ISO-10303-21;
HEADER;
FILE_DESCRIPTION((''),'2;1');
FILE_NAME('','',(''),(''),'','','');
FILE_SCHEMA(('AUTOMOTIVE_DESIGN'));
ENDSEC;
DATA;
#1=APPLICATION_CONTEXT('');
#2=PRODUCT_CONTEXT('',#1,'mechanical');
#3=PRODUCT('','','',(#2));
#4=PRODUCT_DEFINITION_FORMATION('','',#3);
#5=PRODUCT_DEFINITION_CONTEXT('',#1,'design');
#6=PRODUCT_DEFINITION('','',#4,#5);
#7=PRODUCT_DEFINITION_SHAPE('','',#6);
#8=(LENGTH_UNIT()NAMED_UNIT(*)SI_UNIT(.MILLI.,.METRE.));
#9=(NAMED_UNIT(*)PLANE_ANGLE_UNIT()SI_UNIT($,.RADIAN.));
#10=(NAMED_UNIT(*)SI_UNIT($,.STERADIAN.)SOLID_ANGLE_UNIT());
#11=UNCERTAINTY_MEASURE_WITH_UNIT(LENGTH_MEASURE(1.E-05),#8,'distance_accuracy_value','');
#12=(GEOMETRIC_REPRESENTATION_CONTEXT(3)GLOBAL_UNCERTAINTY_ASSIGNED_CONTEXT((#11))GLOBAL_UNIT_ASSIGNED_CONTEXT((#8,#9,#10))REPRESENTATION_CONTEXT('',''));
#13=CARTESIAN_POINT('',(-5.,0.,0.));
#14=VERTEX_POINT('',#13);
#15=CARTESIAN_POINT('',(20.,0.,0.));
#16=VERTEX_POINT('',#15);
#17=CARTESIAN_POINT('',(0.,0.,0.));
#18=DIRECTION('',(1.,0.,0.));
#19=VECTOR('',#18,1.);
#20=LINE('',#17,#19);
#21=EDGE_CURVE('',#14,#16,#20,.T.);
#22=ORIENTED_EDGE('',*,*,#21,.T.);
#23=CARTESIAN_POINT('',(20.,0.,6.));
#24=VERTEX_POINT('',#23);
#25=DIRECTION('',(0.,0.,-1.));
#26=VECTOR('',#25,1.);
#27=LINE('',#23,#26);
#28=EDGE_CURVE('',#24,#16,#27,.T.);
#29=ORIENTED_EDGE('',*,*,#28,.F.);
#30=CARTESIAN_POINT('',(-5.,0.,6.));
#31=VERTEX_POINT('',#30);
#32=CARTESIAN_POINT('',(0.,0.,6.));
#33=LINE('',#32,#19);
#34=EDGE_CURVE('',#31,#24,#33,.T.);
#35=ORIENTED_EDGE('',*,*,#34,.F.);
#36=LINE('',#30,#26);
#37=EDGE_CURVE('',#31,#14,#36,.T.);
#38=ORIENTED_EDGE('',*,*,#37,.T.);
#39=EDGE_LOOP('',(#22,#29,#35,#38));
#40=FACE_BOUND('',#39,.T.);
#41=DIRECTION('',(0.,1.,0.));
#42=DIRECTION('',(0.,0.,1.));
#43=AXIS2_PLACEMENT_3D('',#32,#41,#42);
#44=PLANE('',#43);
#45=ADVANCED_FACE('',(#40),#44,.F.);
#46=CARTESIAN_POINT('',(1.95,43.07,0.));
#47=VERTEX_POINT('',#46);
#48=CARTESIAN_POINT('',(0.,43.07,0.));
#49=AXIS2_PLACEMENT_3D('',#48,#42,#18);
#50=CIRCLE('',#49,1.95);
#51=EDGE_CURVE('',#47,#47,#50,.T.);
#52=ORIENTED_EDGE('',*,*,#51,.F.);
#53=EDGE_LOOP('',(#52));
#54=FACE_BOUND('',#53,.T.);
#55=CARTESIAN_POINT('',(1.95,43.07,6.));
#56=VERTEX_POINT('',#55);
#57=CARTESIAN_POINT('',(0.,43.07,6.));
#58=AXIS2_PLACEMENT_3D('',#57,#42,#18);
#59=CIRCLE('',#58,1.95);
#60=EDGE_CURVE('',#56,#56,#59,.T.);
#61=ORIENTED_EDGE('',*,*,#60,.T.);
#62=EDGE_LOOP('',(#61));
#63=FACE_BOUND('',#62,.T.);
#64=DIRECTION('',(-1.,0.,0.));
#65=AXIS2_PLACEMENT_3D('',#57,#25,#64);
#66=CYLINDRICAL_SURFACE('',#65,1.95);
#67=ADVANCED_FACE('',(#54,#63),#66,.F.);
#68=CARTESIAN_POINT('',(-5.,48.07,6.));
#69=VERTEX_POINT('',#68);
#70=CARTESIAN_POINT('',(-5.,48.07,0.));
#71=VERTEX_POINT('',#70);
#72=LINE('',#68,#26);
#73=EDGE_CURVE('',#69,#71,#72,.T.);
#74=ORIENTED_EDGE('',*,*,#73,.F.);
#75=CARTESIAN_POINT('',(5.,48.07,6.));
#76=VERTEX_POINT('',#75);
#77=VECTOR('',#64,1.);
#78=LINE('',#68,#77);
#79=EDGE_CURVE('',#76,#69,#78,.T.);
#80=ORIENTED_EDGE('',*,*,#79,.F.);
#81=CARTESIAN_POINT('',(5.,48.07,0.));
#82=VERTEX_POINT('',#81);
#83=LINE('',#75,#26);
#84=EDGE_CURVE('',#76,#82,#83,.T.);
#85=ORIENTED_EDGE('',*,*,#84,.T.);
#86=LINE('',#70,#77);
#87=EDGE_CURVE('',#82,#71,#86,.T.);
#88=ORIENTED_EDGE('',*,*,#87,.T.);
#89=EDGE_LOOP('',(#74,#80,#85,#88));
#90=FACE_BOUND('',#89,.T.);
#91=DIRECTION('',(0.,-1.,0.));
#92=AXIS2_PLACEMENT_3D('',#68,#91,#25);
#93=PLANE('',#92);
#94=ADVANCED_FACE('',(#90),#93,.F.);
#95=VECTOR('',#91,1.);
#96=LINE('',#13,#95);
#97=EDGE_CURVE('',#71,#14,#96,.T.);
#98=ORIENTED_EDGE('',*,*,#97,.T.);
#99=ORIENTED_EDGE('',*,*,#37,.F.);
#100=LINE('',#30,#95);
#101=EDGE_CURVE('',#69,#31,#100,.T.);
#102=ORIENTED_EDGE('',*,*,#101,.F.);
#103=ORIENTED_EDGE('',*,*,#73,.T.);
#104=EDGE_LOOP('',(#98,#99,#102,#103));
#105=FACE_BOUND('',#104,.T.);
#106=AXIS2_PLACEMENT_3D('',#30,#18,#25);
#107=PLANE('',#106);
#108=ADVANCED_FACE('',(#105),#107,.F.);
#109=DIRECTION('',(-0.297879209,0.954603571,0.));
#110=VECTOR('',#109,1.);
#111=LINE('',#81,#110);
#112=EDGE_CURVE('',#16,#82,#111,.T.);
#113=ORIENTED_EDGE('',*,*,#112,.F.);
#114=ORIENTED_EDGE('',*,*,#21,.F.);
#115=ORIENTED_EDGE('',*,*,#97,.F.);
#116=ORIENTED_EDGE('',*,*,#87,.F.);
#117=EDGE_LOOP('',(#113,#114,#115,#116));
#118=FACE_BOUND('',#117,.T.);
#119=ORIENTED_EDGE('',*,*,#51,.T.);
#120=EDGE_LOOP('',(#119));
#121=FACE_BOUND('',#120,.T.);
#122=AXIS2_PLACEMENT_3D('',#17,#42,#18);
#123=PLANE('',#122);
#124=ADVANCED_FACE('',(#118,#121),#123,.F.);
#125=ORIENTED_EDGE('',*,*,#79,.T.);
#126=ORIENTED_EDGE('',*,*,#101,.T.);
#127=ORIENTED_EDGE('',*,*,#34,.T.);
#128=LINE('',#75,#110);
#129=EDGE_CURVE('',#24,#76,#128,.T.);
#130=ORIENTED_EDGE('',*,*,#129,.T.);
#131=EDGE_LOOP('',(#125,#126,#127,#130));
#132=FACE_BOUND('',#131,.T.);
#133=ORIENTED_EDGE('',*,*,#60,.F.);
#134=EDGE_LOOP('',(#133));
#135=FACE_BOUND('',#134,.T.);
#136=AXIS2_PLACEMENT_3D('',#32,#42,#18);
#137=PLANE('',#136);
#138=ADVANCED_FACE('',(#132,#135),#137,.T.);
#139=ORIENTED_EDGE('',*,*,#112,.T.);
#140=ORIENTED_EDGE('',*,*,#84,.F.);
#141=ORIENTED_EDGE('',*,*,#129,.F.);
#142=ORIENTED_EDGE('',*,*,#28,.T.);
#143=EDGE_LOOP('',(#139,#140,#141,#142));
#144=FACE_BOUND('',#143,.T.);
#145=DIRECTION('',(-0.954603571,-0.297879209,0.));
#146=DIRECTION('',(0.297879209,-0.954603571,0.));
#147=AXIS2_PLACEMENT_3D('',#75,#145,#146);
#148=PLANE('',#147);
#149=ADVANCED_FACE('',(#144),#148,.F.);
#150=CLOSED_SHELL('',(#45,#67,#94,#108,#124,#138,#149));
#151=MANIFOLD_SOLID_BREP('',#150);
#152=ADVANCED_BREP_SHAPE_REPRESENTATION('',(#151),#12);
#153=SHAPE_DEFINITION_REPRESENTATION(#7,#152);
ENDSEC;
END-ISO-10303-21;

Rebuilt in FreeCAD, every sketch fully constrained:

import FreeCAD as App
import Part
import Sketcher
from FreeCAD import Vector

doc = App.newDocument("Part")
body = doc.addObject("PartDesign::Body", "Body")

# Sketch on XY plane
sketch1 = body.newObject("Sketcher::SketchObject", "Sketch")
sketch1.AttachmentSupport = (doc.getObject("XY_Plane"), [""])
sketch1.MapMode = "FlatFace"
sketch1.addGeometry(Part.LineSegment(Vector(-5, 0, 0), Vector(20, 0, 0)), False)
sketch1.addGeometry(Part.LineSegment(Vector(20, 0, 0), Vector(5, 48.1, 0)), False)
sketch1.addGeometry(Part.LineSegment(Vector(5, 48.1, 0), Vector(-5, 48.1, 0)), False)
sketch1.addGeometry(Part.LineSegment(Vector(-5, 48.1, 0), Vector(-5, 0, 0)), False)
sketch1.addGeometry(Part.Circle(Vector(0, 43.1, 0), Vector(0, 0, 1), 1.9), False)
sketch1.addConstraint(Sketcher.Constraint("Coincident", 0, 2, 1, 1))
sketch1.addConstraint(Sketcher.Constraint("Coincident", 1, 2, 2, 1))
sketch1.addConstraint(Sketcher.Constraint("Coincident", 2, 2, 3, 1))
sketch1.addConstraint(Sketcher.Constraint("Coincident", 3, 2, 0, 1))
sketch1.addConstraint(Sketcher.Constraint("Horizontal", 0))
sketch1.addConstraint(Sketcher.Constraint("Horizontal", 2))
sketch1.addConstraint(Sketcher.Constraint("Vertical", 3))
sketch1.addConstraint(Sketcher.Constraint("PointOnObject", 4, 3, -2))
sketch1.addConstraint(Sketcher.Constraint("PointOnObject", 0, 2, -1))
sketch1.addConstraint(Sketcher.Constraint("Diameter", 4, 3.9))
sketch1.addConstraint(Sketcher.Constraint("DistanceX", 0, 1, 0, 2, 25.0))
sketch1.addConstraint(Sketcher.Constraint("DistanceX", 2, 2, 2, 1, 10.0))
sketch1.addConstraint(Sketcher.Constraint("DistanceX", -1, 1, 0, 2, 20.0))
sketch1.addConstraint(Sketcher.Constraint("DistanceY", 4, 3, 1, 2, 5.0))
sketch1.addConstraint(Sketcher.Constraint("DistanceY", 3, 2, 3, 1, 48.07))
pad1 = body.newObject("PartDesign::Pad", "Pad")
pad1.Profile = sketch1
pad1.Length = 6

doc.recompute()
